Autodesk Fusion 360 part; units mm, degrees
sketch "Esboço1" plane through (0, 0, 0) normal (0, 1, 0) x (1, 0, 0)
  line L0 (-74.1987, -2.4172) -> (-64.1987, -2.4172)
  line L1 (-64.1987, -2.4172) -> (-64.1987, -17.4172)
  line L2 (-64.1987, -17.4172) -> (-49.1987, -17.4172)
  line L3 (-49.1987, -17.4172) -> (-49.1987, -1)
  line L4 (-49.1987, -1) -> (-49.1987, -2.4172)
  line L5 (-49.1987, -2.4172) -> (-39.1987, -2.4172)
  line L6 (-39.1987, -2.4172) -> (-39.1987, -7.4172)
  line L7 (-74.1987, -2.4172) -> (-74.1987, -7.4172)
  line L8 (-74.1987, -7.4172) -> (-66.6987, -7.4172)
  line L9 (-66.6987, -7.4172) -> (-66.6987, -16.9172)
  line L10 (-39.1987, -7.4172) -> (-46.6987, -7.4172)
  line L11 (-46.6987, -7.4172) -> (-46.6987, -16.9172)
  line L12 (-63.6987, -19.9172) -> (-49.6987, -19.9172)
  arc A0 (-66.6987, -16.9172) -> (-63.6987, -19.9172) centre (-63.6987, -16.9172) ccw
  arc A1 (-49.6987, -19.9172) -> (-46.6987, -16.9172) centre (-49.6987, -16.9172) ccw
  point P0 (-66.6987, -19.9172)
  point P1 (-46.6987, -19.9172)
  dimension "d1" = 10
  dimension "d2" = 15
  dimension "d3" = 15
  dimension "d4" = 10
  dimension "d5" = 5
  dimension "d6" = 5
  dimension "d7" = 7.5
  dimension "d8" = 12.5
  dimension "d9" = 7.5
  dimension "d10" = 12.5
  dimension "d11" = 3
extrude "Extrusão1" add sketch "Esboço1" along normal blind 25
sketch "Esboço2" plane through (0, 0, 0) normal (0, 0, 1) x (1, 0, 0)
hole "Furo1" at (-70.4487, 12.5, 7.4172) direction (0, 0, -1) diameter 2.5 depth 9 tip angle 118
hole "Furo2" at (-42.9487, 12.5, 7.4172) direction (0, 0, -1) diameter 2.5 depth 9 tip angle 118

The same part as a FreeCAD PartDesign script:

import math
import FreeCAD as App
import Part
import Sketcher
from FreeCAD import Vector

doc = App.newDocument("Part")
body = doc.addObject("PartDesign::Body", "Body")

sketch1 = body.newObject("Sketcher::SketchObject", "Sketch")
sketch1.AttachmentSupport = (doc.getObject("XZ_Plane"), [""])
sketch1.MapMode = "FlatFace"
sketch1.addGeometry([
    Part.LineSegment(Vector(-64.2, 2.4, 0), Vector(-74.2, 2.4, 0)),
    Part.LineSegment(Vector(-74.2, 2.4, 0), Vector(-74.2, 7.4, 0)),
    Part.LineSegment(Vector(-74.2, 7.4, 0), Vector(-66.7, 7.4, 0)),
    Part.LineSegment(Vector(-66.7, 7.4, 0), Vector(-66.7, 16.9, 0)),
    Part.ArcOfCircle(Part.Circle(Vector(-63.7, 16.9, 0), Vector(0, 0, 1), 3), math.radians(90), math.radians(180)),
    Part.LineSegment(Vector(-63.7, 19.9, 0), Vector(-49.7, 19.9, 0)),
    Part.ArcOfCircle(Part.Circle(Vector(-49.7, 16.9, 0), Vector(0, 0, 1), 3), math.radians(0), math.radians(90)),
    Part.LineSegment(Vector(-46.7, 16.9, 0), Vector(-46.7, 7.4, 0)),
    Part.LineSegment(Vector(-46.7, 7.4, 0), Vector(-39.2, 7.4, 0)),
    Part.LineSegment(Vector(-39.2, 7.4, 0), Vector(-39.2, 2.4, 0)),
    Part.LineSegment(Vector(-39.2, 2.4, 0), Vector(-49.2, 2.4, 0)),
    Part.LineSegment(Vector(-49.2, 2.4, 0), Vector(-49.2, 17.4, 0)),
    Part.LineSegment(Vector(-49.2, 17.4, 0), Vector(-64.2, 17.4, 0)),
    Part.LineSegment(Vector(-64.2, 17.4, 0), Vector(-64.2, 2.4, 0)),
], False)
sketch1.addConstraint([
    Sketcher.Constraint("Coincident", 0, 2, 1, 1),
    Sketcher.Constraint("Coincident", 1, 2, 2, 1),
    Sketcher.Constraint("Coincident", 2, 2, 3, 1),
    Sketcher.Constraint("Tangent", 3, 2, 4, 2),
    Sketcher.Constraint("Tangent", 4, 1, 5, 1),
    Sketcher.Constraint("Tangent", 5, 2, 6, 2),
    Sketcher.Constraint("Tangent", 6, 1, 7, 1),
    Sketcher.Constraint("Coincident", 7, 2, 8, 1),
    Sketcher.Constraint("Coincident", 8, 2, 9, 1),
    Sketcher.Constraint("Coincident", 9, 2, 10, 1),
    Sketcher.Constraint("Coincident", 10, 2, 11, 1),
    Sketcher.Constraint("Coincident", 11, 2, 12, 1),
    Sketcher.Constraint("Coincident", 12, 2, 13, 1),
    Sketcher.Constraint("Coincident", 13, 2, 0, 1),
    Sketcher.Constraint("Horizontal", 0),
    Sketcher.Constraint("Vertical", 1),
    Sketcher.Constraint("Horizontal", 2),
    Sketcher.Constraint("Vertical", 3),
    Sketcher.Constraint("Horizontal", 5),
    Sketcher.Constraint("Vertical", 7),
    Sketcher.Constraint("Horizontal", 8),
    Sketcher.Constraint("Vertical", 9),
    Sketcher.Constraint("Horizontal", 10),
    Sketcher.Constraint("Vertical", 11),
    Sketcher.Constraint("Horizontal", 12),
    Sketcher.Constraint("Vertical", 13),
    Sketcher.Constraint("Equal", 4, 6),
    Sketcher.Constraint("Horizontal", 2, 2, 7, 2),
    Sketcher.Constraint("Horizontal", 0, 2, 9, 2),
    Sketcher.Constraint("Equal", 2, 8),
    Sketcher.Constraint("Equal", 0, 10),
    Sketcher.Constraint("Equal", 12, 11),
    Sketcher.Constraint("Radius", 4, 3.0),
    Sketcher.Constraint("DistanceX", 0, 2, 0, 1, 10.0),
    Sketcher.Constraint("DistanceX", 12, 2, 12, 1, 15.0),
    Sketcher.Constraint("DistanceY", 1, 1, 1, 2, 5.0),
    Sketcher.Constraint("DistanceX", 2, 1, 2, 2, 7.5),
    Sketcher.Constraint("DistanceY", 2, 2, 4, 1, 12.5),
    Sketcher.Constraint("DistanceX", 4, 3, -1, 1, 63.6987),
    Sketcher.Constraint("DistanceY", -1, 1, 4, 3, 16.9172),
])
pad1 = body.newObject("PartDesign::Pad", "Pad")
pad1.Profile = sketch1
pad1.Length = 25
pad1.Reversed = True

sketch2 = body.newObject("Sketcher::SketchObject", "Sketch001")
sketch2.AttachmentSupport = (doc.getObject("XY_Plane"), [""])
sketch2.MapMode = "FlatFace"
sketch2.AttachmentOffset = App.Placement(Vector(0, 0, 7.4172), App.Rotation())
sketch2.addGeometry(Part.Circle(Vector(-70.4, 12.5, 0), Vector(0, 0, 1), 1.2), False)
sketch2.addConstraint([
    Sketcher.Constraint("Diameter", 0, 2.5),
    Sketcher.Constraint("DistanceY", -1, 1, 0, 3, 12.5),
    Sketcher.Constraint("DistanceX", 0, 3, -1, 1, 70.4487),
])
doc.recompute()
hole = body.newObject("PartDesign::Hole", "Hole")
hole.Profile = sketch2
hole.ThreadType = "None"
hole.Diameter = 2.5
hole.DepthType = "Dimension"
hole.Depth = 9
hole.DrillPoint = "Angled"
hole.DrillPointAngle = 118

sketch3 = body.newObject("Sketcher::SketchObject", "Sketch002")
sketch3.AttachmentSupport = (doc.getObject("XY_Plane"), [""])
sketch3.MapMode = "FlatFace"
sketch3.AttachmentOffset = App.Placement(Vector(0, 0, 7.4172), App.Rotation())
sketch3.addGeometry(Part.Circle(Vector(-42.9, 12.5, 0), Vector(0, 0, 1), 1.2), False)
sketch3.addConstraint([
    Sketcher.Constraint("Diameter", 0, 2.5),
    Sketcher.Constraint("DistanceY", -1, 1, 0, 3, 12.5),
    Sketcher.Constraint("DistanceX", 0, 3, -1, 1, 42.9487),
])
doc.recompute()
hole2 = body.newObject("PartDesign::Hole", "Hole001")
hole2.Profile = sketch3
hole2.ThreadType = "None"
hole2.Diameter = 2.5
hole2.DepthType = "Dimension"
hole2.Depth = 9
hole2.DrillPoint = "Angled"
hole2.DrillPointAngle = 118

doc.recompute()
